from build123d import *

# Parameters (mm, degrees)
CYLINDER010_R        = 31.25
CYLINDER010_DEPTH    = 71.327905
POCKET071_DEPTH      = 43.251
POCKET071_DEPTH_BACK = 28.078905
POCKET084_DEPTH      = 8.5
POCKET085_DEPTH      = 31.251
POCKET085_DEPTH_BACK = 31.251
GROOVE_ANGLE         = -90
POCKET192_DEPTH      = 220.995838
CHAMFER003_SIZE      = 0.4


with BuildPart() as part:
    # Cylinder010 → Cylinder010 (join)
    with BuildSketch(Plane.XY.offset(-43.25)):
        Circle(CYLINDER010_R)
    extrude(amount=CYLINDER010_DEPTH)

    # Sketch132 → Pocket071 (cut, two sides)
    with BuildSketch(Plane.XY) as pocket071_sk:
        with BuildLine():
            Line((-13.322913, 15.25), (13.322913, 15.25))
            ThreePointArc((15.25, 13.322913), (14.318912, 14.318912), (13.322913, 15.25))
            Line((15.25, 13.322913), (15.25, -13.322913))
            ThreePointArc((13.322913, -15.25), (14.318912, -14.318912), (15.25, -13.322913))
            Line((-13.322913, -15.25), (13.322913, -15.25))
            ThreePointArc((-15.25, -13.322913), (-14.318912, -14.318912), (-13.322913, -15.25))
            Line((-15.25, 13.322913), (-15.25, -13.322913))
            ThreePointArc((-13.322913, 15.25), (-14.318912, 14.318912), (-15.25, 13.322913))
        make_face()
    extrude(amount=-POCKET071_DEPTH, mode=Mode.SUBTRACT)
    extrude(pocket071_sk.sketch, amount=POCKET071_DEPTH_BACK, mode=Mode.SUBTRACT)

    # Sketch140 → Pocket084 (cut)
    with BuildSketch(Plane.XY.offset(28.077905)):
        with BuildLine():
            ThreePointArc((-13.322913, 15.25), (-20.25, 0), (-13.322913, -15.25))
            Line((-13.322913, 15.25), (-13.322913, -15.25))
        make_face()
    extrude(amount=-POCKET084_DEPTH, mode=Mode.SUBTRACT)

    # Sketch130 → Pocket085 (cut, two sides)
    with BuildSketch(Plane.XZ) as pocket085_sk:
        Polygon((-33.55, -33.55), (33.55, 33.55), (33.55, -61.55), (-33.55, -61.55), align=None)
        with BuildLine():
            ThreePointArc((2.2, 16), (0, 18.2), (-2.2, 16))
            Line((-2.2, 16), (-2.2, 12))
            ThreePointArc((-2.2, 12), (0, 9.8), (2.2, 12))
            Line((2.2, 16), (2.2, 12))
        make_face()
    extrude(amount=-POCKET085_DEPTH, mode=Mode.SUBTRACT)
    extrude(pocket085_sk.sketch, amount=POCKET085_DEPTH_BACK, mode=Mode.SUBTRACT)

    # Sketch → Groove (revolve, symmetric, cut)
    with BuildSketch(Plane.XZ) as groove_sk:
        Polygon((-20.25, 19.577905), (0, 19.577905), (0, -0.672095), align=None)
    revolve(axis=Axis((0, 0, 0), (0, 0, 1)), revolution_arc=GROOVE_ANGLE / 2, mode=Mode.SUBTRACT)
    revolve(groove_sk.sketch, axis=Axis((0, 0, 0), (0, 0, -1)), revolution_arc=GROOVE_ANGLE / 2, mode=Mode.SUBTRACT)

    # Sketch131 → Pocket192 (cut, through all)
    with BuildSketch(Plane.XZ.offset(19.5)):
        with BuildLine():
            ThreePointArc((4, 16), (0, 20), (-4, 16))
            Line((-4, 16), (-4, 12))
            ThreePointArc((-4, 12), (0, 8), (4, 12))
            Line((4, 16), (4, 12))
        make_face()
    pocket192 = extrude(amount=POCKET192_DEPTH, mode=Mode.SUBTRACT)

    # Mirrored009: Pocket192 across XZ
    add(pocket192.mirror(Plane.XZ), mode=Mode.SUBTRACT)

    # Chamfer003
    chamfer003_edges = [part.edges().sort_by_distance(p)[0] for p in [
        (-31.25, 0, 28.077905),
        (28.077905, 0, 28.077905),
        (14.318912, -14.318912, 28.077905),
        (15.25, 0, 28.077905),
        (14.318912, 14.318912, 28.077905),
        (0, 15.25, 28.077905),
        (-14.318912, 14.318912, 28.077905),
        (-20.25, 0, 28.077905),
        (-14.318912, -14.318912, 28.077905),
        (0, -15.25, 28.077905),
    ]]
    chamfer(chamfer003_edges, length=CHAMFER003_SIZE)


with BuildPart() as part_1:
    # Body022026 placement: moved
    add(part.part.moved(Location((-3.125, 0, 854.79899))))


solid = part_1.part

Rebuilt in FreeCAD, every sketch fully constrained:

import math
import FreeCAD as App
import Part
import Sketcher
from FreeCAD import Vector
Q = App.Units.Quantity


def edges_at(feature, points):
    """Names of the edges that pass closest to the given points."""
    edges = feature.Shape.Edges
    near = lambda p: min(range(len(edges)), key=lambda i: edges[i].distToShape(Part.Vertex(*p))[0])
    return sorted({f"Edge{near(p) + 1}" for p in points})

doc = App.newDocument("Part")
body = doc.addObject("PartDesign::Body", "Body")

sketch1 = doc.addObject("Sketcher::SketchObject", "Sketch")
body.addObject(sketch1)
sketch1.AttachmentSupport = (doc.XY_Plane, [""])
sketch1.MapMode = "FlatFace"
sketch1.AttachmentOffset = App.Placement(Vector(0, 0, -43.25), App.Rotation())
sketch1.addGeometry(Part.Circle(Vector(0, 0, 0), Vector(0, 0, 1), 31), False)
sketch1.addConstraint(Sketcher.Constraint("Coincident", 0, 3, -1, 1))
sketch1.addConstraint(Sketcher.Constraint("Diameter", 0, 62.5))
pad1 = doc.addObject("PartDesign::Pad", "Pad")
body.addObject(pad1)
pad1.Profile = sketch1
pad1.Length = 71.327905

sketch2 = doc.addObject("Sketcher::SketchObject", "Sketch001")
body.addObject(sketch2)
sketch2.AttachmentSupport = (doc.XY_Plane, [""])
sketch2.MapMode = "FlatFace"
sketch2.addGeometry(Part.LineSegment(Vector(13.3, 15.2, 0), Vector(-13.3, 15.2, 0)), False)
sketch2.addGeometry(Part.ArcOfCircle(Part.Circle(Vector(0, 0, 0), Vector(0, 0, 1), 20.3), math.radians(131.14), math.radians(138.86)), False)
sketch2.addGeometry(Part.LineSegment(Vector(-15.2, 13.3, 0), Vector(-15.2, -13.3, 0)), False)
sketch2.addGeometry(Part.ArcOfCircle(Part.Circle(Vector(0, 0, 0), Vector(0, 0, 1), 20.3), math.radians(-138.86), math.radians(-131.14)), False)
sketch2.addGeometry(Part.LineSegment(Vector(-13.3, -15.2, 0), Vector(13.3, -15.2, 0)), False)
sketch2.addGeometry(Part.ArcOfCircle(Part.Circle(Vector(0, 0, 0), Vector(0, 0, 1), 20.3), math.radians(-48.86), math.radians(-41.14)), False)
sketch2.addGeometry(Part.LineSegment(Vector(15.2, -13.3, 0), Vector(15.2, 13.3, 0)), False)
sketch2.addGeometry(Part.ArcOfCircle(Part.Circle(Vector(0, 0, 0), Vector(0, 0, 1), 20.3), math.radians(41.14), math.radians(48.86)), False)
sketch2.addConstraint(Sketcher.Constraint("Coincident", 0, 2, 1, 1))
sketch2.addConstraint(Sketcher.Constraint("Coincident", 1, 2, 2, 1))
sketch2.addConstraint(Sketcher.Constraint("Coincident", 2, 2, 3, 1))
sketch2.addConstraint(Sketcher.Constraint("Coincident", 3, 2, 4, 1))
sketch2.addConstraint(Sketcher.Constraint("Coincident", 4, 2, 5, 1))
sketch2.addConstraint(Sketcher.Constraint("Coincident", 5, 2, 6, 1))
sketch2.addConstraint(Sketcher.Constraint("Coincident", 6, 2, 7, 1))
sketch2.addConstraint(Sketcher.Constraint("Coincident", 7, 2, 0, 1))
sketch2.addConstraint(Sketcher.Constraint("Horizontal", 0))
sketch2.addConstraint(Sketcher.Constraint("Vertical", 2))
sketch2.addConstraint(Sketcher.Constraint("Horizontal", 4))
sketch2.addConstraint(Sketcher.Constraint("Vertical", 6))
sketch2.addConstraint(Sketcher.Constraint("Equal", 1, 3))
sketch2.addConstraint(Sketcher.Constraint("Equal", 3, 5))
sketch2.addConstraint(Sketcher.Constraint("Equal", 5, 7))
sketch2.addConstraint(Sketcher.Constraint("Symmetric", 1, 3, 5, 3, -1, 1))
sketch2.addConstraint(Sketcher.Constraint("Symmetric", 3, 3, 7, 3, -1, 1))
sketch2.addConstraint(Sketcher.Constraint("Symmetric", 3, 3, 5, 3, -2))
sketch2.addConstraint(Sketcher.Constraint("Horizontal", 2, 2, 5, 2))
sketch2.addConstraint(Sketcher.Constraint("Vertical", 0, 2, 3, 2))
sketch2.addConstraint(Sketcher.Constraint("Equal", 4, 2))
sketch2.addConstraint(Sketcher.Constraint("DistanceY", -1, 1, 0, 2, 15.25))
sketch2.addConstraint(Sketcher.Constraint("DistanceX", 1, 2, -1, 1, 15.25))
sketch2.addConstraint(Sketcher.Constraint("Radius", 1, 20.250316))
sketch2.addConstraint(Sketcher.Constraint("DistanceX", 0, 2, 0, 1, 26.645826))
pocket1 = doc.addObject("PartDesign::Pocket", "Pocket")
body.addObject(pocket1)
pocket1.Profile = sketch2
pocket1.Type = "ThroughAll"
pocket1.Midplane = True

sketch3 = doc.addObject("Sketcher::SketchObject", "Sketch002")
body.addObject(sketch3)
sketch3.AttachmentSupport = (doc.XY_Plane, [""])
sketch3.MapMode = "FlatFace"
sketch3.AttachmentOffset = App.Placement(Vector(0, 0, 28.077905), App.Rotation())
sketch3.addGeometry(Part.ArcOfCircle(Part.Circle(Vector(0, 0, 0), Vector(0, 0, 1), 20), math.radians(131), math.radians(229)), False)
sketch3.addGeometry(Part.LineSegment(Vector(-13, -15, 0), Vector(-13, 15, 0)), False)
sketch3.addConstraint(Sketcher.Constraint("Coincident", 0, 1, 1, 2))
sketch3.addConstraint(Sketcher.Constraint("Coincident", 1, 1, 0, 2))
sketch3.addConstraint(Sketcher.Constraint("Vertical", 1))
sketch3.addConstraint(Sketcher.Constraint("Coincident", 0, 3, -1, 1))
sketch3.addConstraint(Sketcher.Constraint("Radius", 0, 20.250001))
sketch3.addConstraint(Sketcher.Constraint("DistanceY", 1, 1, 1, 2, 30.5))
pocket2 = doc.addObject("PartDesign::Pocket", "Pocket001")
body.addObject(pocket2)
pocket2.Profile = sketch3
pocket2.Length = 8.5

sketch4 = doc.addObject("Sketcher::SketchObject", "Sketch003")
body.addObject(sketch4)
sketch4.AttachmentSupport = (doc.XZ_Plane, [""])
sketch4.MapMode = "FlatFace"
sketch4.addGeometry(Part.LineSegment(Vector(33.5, 33.5, 0), Vector(-33.5, -33.5, 0)), False)
sketch4.addGeometry(Part.LineSegment(Vector(-33.5, -33.5, 0), Vector(-33.5, -61.5, 0)), False)
sketch4.addGeometry(Part.LineSegment(Vector(-33.5, -61.5, 0), Vector(33.5, -61.5, 0)), False)
sketch4.addGeometry(Part.LineSegment(Vector(33.5, -61.5, 0), Vector(33.5, 33.5, 0)), False)
sketch4.addGeometry(Part.ArcOfCircle(Part.Circle(Vector(0, 16, 0), Vector(0, 0, 1), 2.2), math.radians(0), math.radians(180)), False)
sketch4.addGeometry(Part.LineSegment(Vector(-2.2, 16, 0), Vector(-2.2, 12, 0)), False)
sketch4.addGeometry(Part.ArcOfCircle(Part.Circle(Vector(0, 12, 0), Vector(0, 0, 1), 2.2), math.radians(180), math.radians(360)), False)
sketch4.addGeometry(Part.LineSegment(Vector(2.2, 12, 0), Vector(2.2, 16, 0)), False)
sketch4.addConstraint(Sketcher.Constraint("Coincident", 0, 2, 1, 1))
sketch4.addConstraint(Sketcher.Constraint("Coincident", 1, 2, 2, 1))
sketch4.addConstraint(Sketcher.Constraint("Coincident", 2, 2, 3, 1))
sketch4.addConstraint(Sketcher.Constraint("Coincident", 3, 2, 0, 1))
sketch4.addConstraint(Sketcher.Constraint("Tangent", 4, 2, 5, 1))
sketch4.addConstraint(Sketcher.Constraint("Tangent", 5, 2, 6, 1))
sketch4.addConstraint(Sketcher.Constraint("Tangent", 6, 2, 7, 1))
sketch4.addConstraint(Sketcher.Constraint("Tangent", 7, 2, 4, 1))
sketch4.addConstraint(Sketcher.Constraint("Vertical", 1))
sketch4.addConstraint(Sketcher.Constraint("Horizontal", 2))
sketch4.addConstraint(Sketcher.Constraint("Vertical", 3))
sketch4.addConstraint(Sketcher.Constraint("Vertical", 5))
sketch4.addConstraint(Sketcher.Constraint("Vertical", 7))
sketch4.addConstraint(Sketcher.Constraint("Symmetric", 0, 2, 3, 2, -1, 1))
sketch4.addConstraint(Sketcher.Constraint("PointOnObject", 4, 3, -2))
sketch4.addConstraint(Sketcher.Constraint("Radius", 4, 2.2))
sketch4.addConstraint(Sketcher.Constraint("DistanceY", 1, 2, 1, 1, 28.0))
sketch4.addConstraint(Sketcher.Constraint("DistanceY", 5, 2, 5, 1, 4.0))
sketch4.addConstraint(Sketcher.Constraint("Angle", 0, Q("-135 deg")))
sketch4.addConstraint(Sketcher.Constraint("DistanceX", 2, 1, 2, 2, 67.1))
sketch4.addConstraint(Sketcher.Constraint("DistanceY", -1, 1, 4, 3, 16.0))
pocket3 = doc.addObject("PartDesign::Pocket", "Pocket002")
body.addObject(pocket3)
pocket3.Profile = sketch4
pocket3.Type = "ThroughAll"
pocket3.Midplane = True

sketch5 = doc.addObject("Sketcher::SketchObject", "Sketch004")
body.addObject(sketch5)
sketch5.AttachmentSupport = (doc.XZ_Plane, [""])
sketch5.MapMode = "FlatFace"
sketch5.addGeometry(Part.LineSegment(Vector(0, 20, 0), Vector(-20, 20, 0)), False)
sketch5.addGeometry(Part.LineSegment(Vector(-20, 20, 0), Vector(0, -1, 0)), False)
sketch5.addGeometry(Part.LineSegment(Vector(0, -1, 0), Vector(0, 20, 0)), False)
sketch5.addConstraint(Sketcher.Constraint("Coincident", 0, 2, 1, 1))
sketch5.addConstraint(Sketcher.Constraint("Coincident", 1, 2, 2, 1))
sketch5.addConstraint(Sketcher.Constraint("Coincident", 2, 2, 0, 1))
sketch5.addConstraint(Sketcher.Constraint("Horizontal", 0))
sketch5.addConstraint(Sketcher.Constraint("Vertical", 2))
sketch5.addConstraint(Sketcher.Constraint("PointOnObject", 1, 2, -2))
sketch5.addConstraint(Sketcher.Constraint("Equal", 0, 2))
sketch5.addConstraint(Sketcher.Constraint("DistanceX", 0, 2, 0, 1, 20.25))
sketch5.addConstraint(Sketcher.Constraint("DistanceY", -1, 1, 0, 2, 19.577905))
groove = doc.addObject("PartDesign::Groove", "Groove")
body.addObject(groove)
groove.Profile = sketch5
groove.ReferenceAxis = (sketch5, ["V_Axis"])
groove.Angle = 45
groove.Reversed = True

sketch6 = doc.addObject("Sketcher::SketchObject", "Sketch005")
body.addObject(sketch6)
sketch6.AttachmentSupport = (doc.XZ_Plane, [""])
sketch6.MapMode = "FlatFace"
sketch6.addGeometry(Part.LineSegment(Vector(0, 20, 0), Vector(-20, 20, 0)), False)
sketch6.addGeometry(Part.LineSegment(Vector(-20, 20, 0), Vector(0, -1, 0)), False)
sketch6.addGeometry(Part.LineSegment(Vector(0, -1, 0), Vector(0, 20, 0)), False)
sketch6.addConstraint(Sketcher.Constraint("Coincident", 0, 2, 1, 1))
sketch6.addConstraint(Sketcher.Constraint("Coincident", 1, 2, 2, 1))
sketch6.addConstraint(Sketcher.Constraint("Coincident", 2, 2, 0, 1))
sketch6.addConstraint(Sketcher.Constraint("Horizontal", 0))
sketch6.addConstraint(Sketcher.Constraint("Vertical", 2))
sketch6.addConstraint(Sketcher.Constraint("PointOnObject", 1, 2, -2))
sketch6.addConstraint(Sketcher.Constraint("Equal", 0, 2))
sketch6.addConstraint(Sketcher.Constraint("DistanceX", 0, 2, 0, 1, 20.25))
sketch6.addConstraint(Sketcher.Constraint("DistanceY", -1, 1, 0, 2, 19.577905))
groove2 = doc.addObject("PartDesign::Groove", "Groove001")
body.addObject(groove2)
groove2.Profile = sketch6
groove2.ReferenceAxis = (sketch6, ["V_Axis"])
groove2.Angle = 45

sketch7 = doc.addObject("Sketcher::SketchObject", "Sketch006")
body.addObject(sketch7)
sketch7.AttachmentSupport = (doc.XZ_Plane, [""])
sketch7.MapMode = "FlatFace"
sketch7.AttachmentOffset = App.Placement(Vector(0, 0, 19.5), App.Rotation())
sketch7.addGeometry(Part.ArcOfCircle(Part.Circle(Vector(0, 16, 0), Vector(0, 0, 1), 4), math.radians(0), math.radians(180)), False)
sketch7.addGeometry(Part.LineSegment(Vector(-4, 16, 0), Vector(-4, 12, 0)), False)
sketch7.addGeometry(Part.ArcOfCircle(Part.Circle(Vector(0, 12, 0), Vector(0, 0, 1), 4), math.radians(180), math.radians(360)), False)
sketch7.addGeometry(Part.LineSegment(Vector(4, 12, 0), Vector(4, 16, 0)), False)
sketch7.addConstraint(Sketcher.Constraint("Tangent", 0, 2, 1, 1))
sketch7.addConstraint(Sketcher.Constraint("Tangent", 1, 2, 2, 1))
sketch7.addConstraint(Sketcher.Constraint("Tangent", 2, 2, 3, 1))
sketch7.addConstraint(Sketcher.Constraint("Tangent", 3, 2, 0, 1))
sketch7.addConstraint(Sketcher.Constraint("Vertical", 1))
sketch7.addConstraint(Sketcher.Constraint("Vertical", 3))
sketch7.addConstraint(Sketcher.Constraint("PointOnObject", 0, 3, -2))
sketch7.addConstraint(Sketcher.Constraint("Radius", 0, 4.0))
sketch7.addConstraint(Sketcher.Constraint("DistanceY", 1, 2, 1, 1, 4.0))
sketch7.addConstraint(Sketcher.Constraint("DistanceY", -1, 1, 0, 3, 16.0))
pocket4 = doc.addObject("PartDesign::Pocket", "Pocket003")
body.addObject(pocket4)
pocket4.Profile = sketch7
pocket4.Type = "ThroughAll"
pocket4.Reversed = True
doc.recompute()

mirrored = doc.addObject("PartDesign::Mirrored", "Mirrored")
body.addObject(mirrored)
mirrored.Originals = [pocket4]
mirrored.MirrorPlane = (doc.XZ_Plane, [""])
body.Tip = mirrored
doc.recompute()

chamfer = doc.addObject("PartDesign::Chamfer", "Chamfer")
body.addObject(chamfer)
chamfer.Base = (mirrored, edges_at(mirrored, [
    (-31.25, 0, 28.078),
    (28.078, 0, 28.078),
    (14.319, -14.319, 28.078),
    (15.25, 0, 28.078),
    (14.319, 14.319, 28.078),
    (0, 15.25, 28.078),
    (-14.319, 14.319, 28.078),
    (-20.25, 0, 28.078),
    (-14.319, -14.319, 28.078),
    (0, -15.25, 28.078),
]))
chamfer.Size = 0.4
body2 = doc.addObject("PartDesign::Body", "Body001")
doc.recompute()

body.Placement = App.Placement(Vector(-3.125, 0, 854.79899), App.Rotation(Vector(0, 0, 1), 0))
boolean = doc.addObject("PartDesign::Boolean", "Boolean")
body2.addObject(boolean)
boolean.Type = "Fuse"
boolean.addObjects([body])

doc.recompute()
